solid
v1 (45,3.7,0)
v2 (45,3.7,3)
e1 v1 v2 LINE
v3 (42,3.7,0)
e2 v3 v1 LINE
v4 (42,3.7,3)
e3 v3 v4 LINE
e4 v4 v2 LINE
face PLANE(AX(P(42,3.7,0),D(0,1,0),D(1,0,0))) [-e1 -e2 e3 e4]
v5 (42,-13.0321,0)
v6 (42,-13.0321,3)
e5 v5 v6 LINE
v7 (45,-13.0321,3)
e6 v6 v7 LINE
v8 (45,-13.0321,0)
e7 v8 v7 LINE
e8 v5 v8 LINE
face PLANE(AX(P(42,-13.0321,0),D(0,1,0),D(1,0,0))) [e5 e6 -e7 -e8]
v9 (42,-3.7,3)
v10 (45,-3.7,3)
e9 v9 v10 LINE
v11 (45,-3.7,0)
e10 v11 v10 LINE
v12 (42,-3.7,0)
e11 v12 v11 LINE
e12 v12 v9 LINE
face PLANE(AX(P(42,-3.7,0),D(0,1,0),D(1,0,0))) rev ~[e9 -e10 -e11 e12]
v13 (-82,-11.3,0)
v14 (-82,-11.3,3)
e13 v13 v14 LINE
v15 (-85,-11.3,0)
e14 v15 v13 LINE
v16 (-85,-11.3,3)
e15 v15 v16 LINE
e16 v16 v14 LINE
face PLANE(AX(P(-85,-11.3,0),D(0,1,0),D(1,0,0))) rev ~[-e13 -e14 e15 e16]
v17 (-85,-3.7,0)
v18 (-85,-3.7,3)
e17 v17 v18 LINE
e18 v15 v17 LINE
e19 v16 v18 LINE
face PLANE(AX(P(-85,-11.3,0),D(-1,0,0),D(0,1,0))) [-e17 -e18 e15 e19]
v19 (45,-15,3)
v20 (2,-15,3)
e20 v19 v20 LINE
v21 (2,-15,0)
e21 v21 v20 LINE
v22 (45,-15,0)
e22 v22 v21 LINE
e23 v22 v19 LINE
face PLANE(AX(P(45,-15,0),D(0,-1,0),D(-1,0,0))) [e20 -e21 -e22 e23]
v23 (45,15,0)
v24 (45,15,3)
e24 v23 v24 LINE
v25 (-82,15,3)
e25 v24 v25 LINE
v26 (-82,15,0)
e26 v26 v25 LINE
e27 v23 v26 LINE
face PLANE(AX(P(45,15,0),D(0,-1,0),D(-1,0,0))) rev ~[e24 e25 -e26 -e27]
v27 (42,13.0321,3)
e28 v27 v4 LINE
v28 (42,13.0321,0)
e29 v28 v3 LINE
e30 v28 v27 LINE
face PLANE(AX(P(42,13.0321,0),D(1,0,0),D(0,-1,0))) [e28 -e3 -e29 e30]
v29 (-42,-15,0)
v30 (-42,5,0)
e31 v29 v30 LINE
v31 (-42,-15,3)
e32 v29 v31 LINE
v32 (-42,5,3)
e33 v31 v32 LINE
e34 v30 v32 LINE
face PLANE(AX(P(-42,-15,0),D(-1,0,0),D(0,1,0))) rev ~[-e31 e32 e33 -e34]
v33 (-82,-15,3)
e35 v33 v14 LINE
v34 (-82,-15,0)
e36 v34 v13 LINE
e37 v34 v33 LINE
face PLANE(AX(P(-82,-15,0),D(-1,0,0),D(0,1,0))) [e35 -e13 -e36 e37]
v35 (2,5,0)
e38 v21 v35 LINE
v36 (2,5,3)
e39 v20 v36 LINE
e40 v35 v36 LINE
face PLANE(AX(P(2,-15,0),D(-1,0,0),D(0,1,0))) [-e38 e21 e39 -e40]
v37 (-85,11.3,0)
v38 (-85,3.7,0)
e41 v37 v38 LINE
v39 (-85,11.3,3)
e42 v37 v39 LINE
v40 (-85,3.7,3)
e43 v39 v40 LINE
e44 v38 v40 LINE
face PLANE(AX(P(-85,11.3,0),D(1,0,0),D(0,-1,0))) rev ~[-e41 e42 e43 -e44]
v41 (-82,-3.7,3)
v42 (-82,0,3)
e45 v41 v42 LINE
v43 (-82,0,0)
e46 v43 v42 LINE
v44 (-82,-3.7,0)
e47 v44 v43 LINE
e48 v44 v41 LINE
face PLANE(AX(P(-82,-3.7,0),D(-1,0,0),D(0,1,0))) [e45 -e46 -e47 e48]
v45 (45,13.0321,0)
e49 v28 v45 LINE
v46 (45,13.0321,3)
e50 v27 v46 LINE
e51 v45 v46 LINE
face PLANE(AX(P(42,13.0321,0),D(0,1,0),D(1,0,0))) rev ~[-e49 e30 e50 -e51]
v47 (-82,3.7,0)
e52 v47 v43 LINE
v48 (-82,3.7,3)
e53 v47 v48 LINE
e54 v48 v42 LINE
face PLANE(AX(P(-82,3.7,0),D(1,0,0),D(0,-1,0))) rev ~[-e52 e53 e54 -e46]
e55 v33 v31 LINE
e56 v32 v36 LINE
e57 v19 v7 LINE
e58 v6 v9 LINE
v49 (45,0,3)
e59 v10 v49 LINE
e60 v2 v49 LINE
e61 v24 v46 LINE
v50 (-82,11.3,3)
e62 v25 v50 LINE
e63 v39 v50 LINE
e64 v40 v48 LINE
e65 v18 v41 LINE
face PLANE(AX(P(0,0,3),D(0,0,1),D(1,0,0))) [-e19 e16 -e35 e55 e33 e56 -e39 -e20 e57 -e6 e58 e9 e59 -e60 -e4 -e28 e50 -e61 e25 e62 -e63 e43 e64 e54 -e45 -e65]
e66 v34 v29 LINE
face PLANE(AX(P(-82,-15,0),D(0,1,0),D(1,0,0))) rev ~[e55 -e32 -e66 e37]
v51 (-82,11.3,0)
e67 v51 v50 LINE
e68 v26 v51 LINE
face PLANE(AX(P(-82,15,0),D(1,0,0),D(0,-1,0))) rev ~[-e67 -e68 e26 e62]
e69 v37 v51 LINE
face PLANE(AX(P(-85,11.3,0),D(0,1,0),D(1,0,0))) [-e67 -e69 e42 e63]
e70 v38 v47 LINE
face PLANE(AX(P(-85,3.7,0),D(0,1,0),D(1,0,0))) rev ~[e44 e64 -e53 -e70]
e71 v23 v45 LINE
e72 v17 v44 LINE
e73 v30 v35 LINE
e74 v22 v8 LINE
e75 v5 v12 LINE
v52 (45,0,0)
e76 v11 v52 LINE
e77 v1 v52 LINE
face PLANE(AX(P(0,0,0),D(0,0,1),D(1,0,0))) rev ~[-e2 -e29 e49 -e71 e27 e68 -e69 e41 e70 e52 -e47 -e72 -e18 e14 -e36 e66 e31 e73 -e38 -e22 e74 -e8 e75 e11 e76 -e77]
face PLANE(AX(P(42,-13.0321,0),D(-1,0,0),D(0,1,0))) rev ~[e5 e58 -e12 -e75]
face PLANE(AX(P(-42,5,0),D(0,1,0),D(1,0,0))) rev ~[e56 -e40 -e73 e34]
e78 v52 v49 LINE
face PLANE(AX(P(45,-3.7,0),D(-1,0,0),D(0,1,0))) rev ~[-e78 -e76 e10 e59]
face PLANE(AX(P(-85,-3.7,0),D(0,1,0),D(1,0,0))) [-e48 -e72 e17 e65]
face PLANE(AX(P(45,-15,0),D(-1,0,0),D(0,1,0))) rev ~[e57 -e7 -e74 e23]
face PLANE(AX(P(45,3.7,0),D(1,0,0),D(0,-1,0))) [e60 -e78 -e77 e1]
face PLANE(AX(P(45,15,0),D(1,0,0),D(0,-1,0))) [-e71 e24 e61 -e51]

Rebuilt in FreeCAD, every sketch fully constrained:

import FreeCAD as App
import Part
import Sketcher
from FreeCAD import Vector

doc = App.newDocument("Part")
body = doc.addObject("PartDesign::Body", "Body")

sketch1 = doc.addObject("Sketcher::SketchObject", "Sketch")
body.addObject(sketch1)
sketch1.AttachmentSupport = (doc.XY_Plane, [""])
sketch1.MapMode = "FlatFace"
sketch1.addGeometry(Part.LineSegment(Vector(45, 13, 0), Vector(45, 15, 0)), False)
sketch1.addGeometry(Part.LineSegment(Vector(45, 15, 0), Vector(-82, 15, 0)), False)
sketch1.addGeometry(Part.LineSegment(Vector(-82, 15, 0), Vector(-82, 11.3, 0)), False)
sketch1.addGeometry(Part.LineSegment(Vector(-82, 11.3, 0), Vector(-85, 11.3, 0)), False)
sketch1.addGeometry(Part.LineSegment(Vector(-85, 11.3, 0), Vector(-85, 3.7, 0)), False)
sketch1.addGeometry(Part.LineSegment(Vector(-85, 3.7, 0), Vector(-82, 3.7, 0)), False)
sketch1.addGeometry(Part.LineSegment(Vector(-82, 3.7, 0), Vector(-82, -3.7, 0)), False)
sketch1.addGeometry(Part.LineSegment(Vector(-82, -3.7, 0), Vector(-85, -3.7, 0)), False)
sketch1.addGeometry(Part.LineSegment(Vector(-85, -3.7, 0), Vector(-85, -11.3, 0)), False)
sketch1.addGeometry(Part.LineSegment(Vector(-85, -11.3, 0), Vector(-82, -11.3, 0)), False)
sketch1.addGeometry(Part.LineSegment(Vector(-82, -11.3, 0), Vector(-82, -15, 0)), False)
sketch1.addGeometry(Part.LineSegment(Vector(-82, -15, 0), Vector(-42, -15, 0)), False)
sketch1.addGeometry(Part.LineSegment(Vector(-42, -15, 0), Vector(-42, 5, 0)), False)
sketch1.addGeometry(Part.LineSegment(Vector(-42, 5, 0), Vector(2, 5, 0)), False)
sketch1.addGeometry(Part.LineSegment(Vector(2, 5, 0), Vector(2, -15, 0)), False)
sketch1.addGeometry(Part.LineSegment(Vector(2, -15, 0), Vector(45, -15, 0)), False)
sketch1.addGeometry(Part.LineSegment(Vector(45, -15, 0), Vector(45, -13, 0)), False)
sketch1.addGeometry(Part.LineSegment(Vector(45, -13, 0), Vector(42, -13, 0)), False)
sketch1.addGeometry(Part.LineSegment(Vector(42, -13, 0), Vector(42, -3.7, 0)), False)
sketch1.addGeometry(Part.LineSegment(Vector(42, -3.7, 0), Vector(45, -3.7, 0)), False)
sketch1.addGeometry(Part.LineSegment(Vector(45, -3.7, 0), Vector(45, 3.7, 0)), False)
sketch1.addGeometry(Part.LineSegment(Vector(45, 3.7, 0), Vector(42, 3.7, 0)), False)
sketch1.addGeometry(Part.LineSegment(Vector(42, 3.7, 0), Vector(42, 13, 0)), False)
sketch1.addGeometry(Part.LineSegment(Vector(42, 13, 0), Vector(45, 13, 0)), False)
sketch1.addConstraint(Sketcher.Constraint("Coincident", 0, 2, 1, 1))
sketch1.addConstraint(Sketcher.Constraint("Coincident", 1, 2, 2, 1))
sketch1.addConstraint(Sketcher.Constraint("Coincident", 2, 2, 3, 1))
sketch1.addConstraint(Sketcher.Constraint("Coincident", 3, 2, 4, 1))
sketch1.addConstraint(Sketcher.Constraint("Coincident", 4, 2, 5, 1))
sketch1.addConstraint(Sketcher.Constraint("Coincident", 5, 2, 6, 1))
sketch1.addConstraint(Sketcher.Constraint("Coincident", 6, 2, 7, 1))
sketch1.addConstraint(Sketcher.Constraint("Coincident", 7, 2, 8, 1))
sketch1.addConstraint(Sketcher.Constraint("Coincident", 8, 2, 9, 1))
sketch1.addConstraint(Sketcher.Constraint("Coincident", 9, 2, 10, 1))
sketch1.addConstraint(Sketcher.Constraint("Coincident", 10, 2, 11, 1))
sketch1.addConstraint(Sketcher.Constraint("Coincident", 11, 2, 12, 1))
sketch1.addConstraint(Sketcher.Constraint("Coincident", 12, 2, 13, 1))
sketch1.addConstraint(Sketcher.Constraint("Coincident", 13, 2, 14, 1))
sketch1.addConstraint(Sketcher.Constraint("Coincident", 14, 2, 15, 1))
sketch1.addConstraint(Sketcher.Constraint("Coincident", 15, 2, 16, 1))
sketch1.addConstraint(Sketcher.Constraint("Coincident", 16, 2, 17, 1))
sketch1.addConstraint(Sketcher.Constraint("Coincident", 17, 2, 18, 1))
sketch1.addConstraint(Sketcher.Constraint("Coincident", 18, 2, 19, 1))
sketch1.addConstraint(Sketcher.Constraint("Coincident", 19, 2, 20, 1))
sketch1.addConstraint(Sketcher.Constraint("Coincident", 20, 2, 21, 1))
sketch1.addConstraint(Sketcher.Constraint("Coincident", 21, 2, 22, 1))
sketch1.addConstraint(Sketcher.Constraint("Coincident", 22, 2, 23, 1))
sketch1.addConstraint(Sketcher.Constraint("Coincident", 23, 2, 0, 1))
sketch1.addConstraint(Sketcher.Constraint("Vertical", 0))
sketch1.addConstraint(Sketcher.Constraint("Horizontal", 1))
sketch1.addConstraint(Sketcher.Constraint("Vertical", 2))
sketch1.addConstraint(Sketcher.Constraint("Horizontal", 3))
sketch1.addConstraint(Sketcher.Constraint("Vertical", 4))
sketch1.addConstraint(Sketcher.Constraint("Horizontal", 5))
sketch1.addConstraint(Sketcher.Constraint("Vertical", 6))
sketch1.addConstraint(Sketcher.Constraint("Horizontal", 7))
sketch1.addConstraint(Sketcher.Constraint("Vertical", 8))
sketch1.addConstraint(Sketcher.Constraint("Horizontal", 9))
sketch1.addConstraint(Sketcher.Constraint("Vertical", 10))
sketch1.addConstraint(Sketcher.Constraint("Horizontal", 11))
sketch1.addConstraint(Sketcher.Constraint("Vertical", 12))
sketch1.addConstraint(Sketcher.Constraint("Horizontal", 13))
sketch1.addConstraint(Sketcher.Constraint("Vertical", 14))
sketch1.addConstraint(Sketcher.Constraint("Horizontal", 15))
sketch1.addConstraint(Sketcher.Constraint("Vertical", 16))
sketch1.addConstraint(Sketcher.Constraint("Horizontal", 17))
sketch1.addConstraint(Sketcher.Constraint("Vertical", 18))
sketch1.addConstraint(Sketcher.Constraint("Horizontal", 19))
sketch1.addConstraint(Sketcher.Constraint("Vertical", 20))
sketch1.addConstraint(Sketcher.Constraint("Horizontal", 21))
sketch1.addConstraint(Sketcher.Constraint("Vertical", 22))
sketch1.addConstraint(Sketcher.Constraint("Horizontal", 23))
sketch1.addConstraint(Sketcher.Constraint("Symmetric", 4, 2, 7, 2, -1))
sketch1.addConstraint(Sketcher.Constraint("Symmetric", 2, 2, 9, 2, -1))
sketch1.addConstraint(Sketcher.Constraint("Symmetric", 0, 2, 15, 2, -1))
sketch1.addConstraint(Sketcher.Constraint("Symmetric", 18, 2, 21, 2, -1))
sketch1.addConstraint(Sketcher.Constraint("Horizontal", 11, 2, 14, 2))
sketch1.addConstraint(Sketcher.Constraint("Horizontal", 7, 2, 18, 2))
sketch1.addConstraint(Sketcher.Constraint("Vertical", 2, 2, 5, 2))
sketch1.addConstraint(Sketcher.Constraint("Vertical", 16, 2, 19, 2))
sketch1.addConstraint(Sketcher.Constraint("Equal", 9, 17))
sketch1.addConstraint(Sketcher.Constraint("Equal", 0, 16))
sketch1.addConstraint(Sketcher.Constraint("DistanceX", 3, 2, 3, 1, 3.0))
sketch1.addConstraint(Sketcher.Constraint("DistanceX", 11, 1, 11, 2, 40.0))
sketch1.addConstraint(Sketcher.Constraint("DistanceX", 15, 1, 15, 2, 43.0))
sketch1.addConstraint(Sketcher.Constraint("DistanceY", 12, 1, 12, 2, 20.0))
sketch1.addConstraint(Sketcher.Constraint("DistanceX", 3, 2, 0, 2, 130.0))
sketch1.addConstraint(Sketcher.Constraint("DistanceY", 2, 2, 2, 1, 3.7))
sketch1.addConstraint(Sketcher.Constraint("DistanceY", 4, 2, 4, 1, 7.6))
sketch1.addConstraint(Sketcher.Constraint("DistanceY", 6, 2, 6, 1, 7.4))
sketch1.addConstraint(Sketcher.Constraint("DistanceX", -1, 1, 0, 2, 45.0))
sketch1.addConstraint(Sketcher.Constraint("DistanceY", 0, 1, 0, 2, 1.968))
pad1 = doc.addObject("PartDesign::Pad", "Pad")
body.addObject(pad1)
pad1.Profile = sketch1
pad1.Length = 3

doc.recompute()
